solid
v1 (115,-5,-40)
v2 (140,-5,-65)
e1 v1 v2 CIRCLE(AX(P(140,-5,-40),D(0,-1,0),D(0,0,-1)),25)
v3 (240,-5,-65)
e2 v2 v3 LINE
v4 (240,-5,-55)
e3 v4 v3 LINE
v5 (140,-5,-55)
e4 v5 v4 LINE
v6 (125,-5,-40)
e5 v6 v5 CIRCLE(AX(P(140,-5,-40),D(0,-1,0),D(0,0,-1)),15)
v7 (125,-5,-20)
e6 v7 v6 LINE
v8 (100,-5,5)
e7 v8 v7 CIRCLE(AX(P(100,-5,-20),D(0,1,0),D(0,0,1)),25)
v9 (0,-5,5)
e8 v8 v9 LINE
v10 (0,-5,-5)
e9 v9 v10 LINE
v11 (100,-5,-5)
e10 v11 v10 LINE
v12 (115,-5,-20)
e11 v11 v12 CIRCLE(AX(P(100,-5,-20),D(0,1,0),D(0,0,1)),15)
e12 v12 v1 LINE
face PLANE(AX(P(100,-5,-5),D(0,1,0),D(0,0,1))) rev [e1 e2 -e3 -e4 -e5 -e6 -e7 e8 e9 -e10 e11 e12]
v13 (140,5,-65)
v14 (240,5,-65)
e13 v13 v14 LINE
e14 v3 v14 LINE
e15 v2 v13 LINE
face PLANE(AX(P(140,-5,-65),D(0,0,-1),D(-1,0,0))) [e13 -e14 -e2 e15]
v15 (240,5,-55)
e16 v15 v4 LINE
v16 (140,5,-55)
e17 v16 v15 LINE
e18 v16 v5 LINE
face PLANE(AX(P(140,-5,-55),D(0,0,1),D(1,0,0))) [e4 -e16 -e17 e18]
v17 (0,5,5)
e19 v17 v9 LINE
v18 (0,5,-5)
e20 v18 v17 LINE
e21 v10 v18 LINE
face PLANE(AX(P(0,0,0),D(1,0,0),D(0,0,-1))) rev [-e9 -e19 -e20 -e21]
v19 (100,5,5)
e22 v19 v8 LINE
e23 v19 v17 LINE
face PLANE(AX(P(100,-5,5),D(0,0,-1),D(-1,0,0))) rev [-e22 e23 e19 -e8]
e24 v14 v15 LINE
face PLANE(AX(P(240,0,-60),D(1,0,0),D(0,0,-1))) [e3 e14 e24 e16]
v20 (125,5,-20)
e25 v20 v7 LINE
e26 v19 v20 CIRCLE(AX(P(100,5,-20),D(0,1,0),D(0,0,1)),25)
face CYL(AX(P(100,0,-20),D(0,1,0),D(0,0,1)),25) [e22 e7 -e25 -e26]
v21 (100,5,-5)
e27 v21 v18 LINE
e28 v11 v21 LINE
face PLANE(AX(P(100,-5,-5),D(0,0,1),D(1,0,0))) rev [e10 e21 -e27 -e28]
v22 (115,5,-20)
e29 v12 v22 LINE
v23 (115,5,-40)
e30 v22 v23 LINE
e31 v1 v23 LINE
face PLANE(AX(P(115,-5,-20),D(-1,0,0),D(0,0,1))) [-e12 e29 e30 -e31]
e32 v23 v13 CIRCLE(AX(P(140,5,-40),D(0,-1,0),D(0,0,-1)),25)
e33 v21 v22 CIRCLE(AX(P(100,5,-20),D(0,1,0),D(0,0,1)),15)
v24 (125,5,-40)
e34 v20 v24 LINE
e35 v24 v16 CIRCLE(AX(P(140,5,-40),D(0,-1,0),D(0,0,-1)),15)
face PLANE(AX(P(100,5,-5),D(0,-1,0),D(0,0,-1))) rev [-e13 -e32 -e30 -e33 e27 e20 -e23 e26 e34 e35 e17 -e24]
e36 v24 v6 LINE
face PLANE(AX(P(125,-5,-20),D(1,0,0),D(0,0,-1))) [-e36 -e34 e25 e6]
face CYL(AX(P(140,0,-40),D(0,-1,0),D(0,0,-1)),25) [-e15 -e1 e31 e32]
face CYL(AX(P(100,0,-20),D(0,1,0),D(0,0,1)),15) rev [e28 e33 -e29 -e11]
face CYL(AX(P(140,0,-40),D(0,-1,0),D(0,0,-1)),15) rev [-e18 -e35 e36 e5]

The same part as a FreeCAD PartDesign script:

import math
import FreeCAD as App
import Part
import Sketcher

doc = App.newDocument("Part")
body = doc.addObject("PartDesign::Body", "Body")

# Sketch on YZ plane
sketch1 = body.newObject("Sketcher::SketchObject", "Sketch")
sketch1.AttachmentSupport = (doc.getObject("YZ_Plane"), [""])
sketch1.MapMode = "FlatFace"
sketch1.addGeometry(Part.LineSegment(App.Vector(5, 5, 0), App.Vector(-5, 5, 0)), False)
sketch1.addGeometry(Part.LineSegment(App.Vector(-5, 5, 0), App.Vector(-5, -5, 0)), False)
sketch1.addGeometry(Part.LineSegment(App.Vector(-5, -5, 0), App.Vector(5, -5, 0)), False)
sketch1.addGeometry(Part.LineSegment(App.Vector(5, -5, 0), App.Vector(5, 5, 0)), False)
sketch1.addConstraint(Sketcher.Constraint("Coincident", 0, 2, 1, 1))
sketch1.addConstraint(Sketcher.Constraint("Coincident", 1, 2, 2, 1))
sketch1.addConstraint(Sketcher.Constraint("Coincident", 2, 2, 3, 1))
sketch1.addConstraint(Sketcher.Constraint("Coincident", 3, 2, 0, 1))
sketch1.addConstraint(Sketcher.Constraint("Horizontal", 0))
sketch1.addConstraint(Sketcher.Constraint("Vertical", 1))
sketch1.addConstraint(Sketcher.Constraint("Horizontal", 2))
sketch1.addConstraint(Sketcher.Constraint("Vertical", 3))
sketch1.addConstraint(Sketcher.Constraint("Symmetric", 0, 2, 2, 2, -1, 1))
sketch1.addConstraint(Sketcher.Constraint("Equal", 2, 1))
sketch1.addConstraint(Sketcher.Constraint("DistanceX", 0, 2, 0, 1, 10.0))

# Sketch on XZ plane
sketch2 = body.newObject("Sketcher::SketchObject", "Sketch001")
sketch2.AttachmentSupport = (doc.getObject("XZ_Plane"), [""])
sketch2.MapMode = "FlatFace"
sketch2.addGeometry(Part.LineSegment(App.Vector(0, 0, 0), App.Vector(100, 0, 0)), False)
sketch2.addGeometry(Part.ArcOfCircle(Part.Circle(App.Vector(100, -20, 0), App.Vector(0, 0, 1), 20), math.radians(0), math.radians(90)), False)
sketch2.addGeometry(Part.LineSegment(App.Vector(120, -20, 0), App.Vector(120, -40, 0)), False)
sketch2.addGeometry(Part.ArcOfCircle(Part.Circle(App.Vector(140, -40, 0), App.Vector(0, 0, 1), 20), math.radians(180), math.radians(270)), False)
sketch2.addGeometry(Part.LineSegment(App.Vector(140, -60, 0), App.Vector(240, -60, 0)), False)
sketch2.addConstraint(Sketcher.Constraint("Tangent", 0, 2, 1, 2))
sketch2.addConstraint(Sketcher.Constraint("Tangent", 1, 1, 2, 1))
sketch2.addConstraint(Sketcher.Constraint("Tangent", 2, 2, 3, 1))
sketch2.addConstraint(Sketcher.Constraint("Tangent", 3, 2, 4, 1))
sketch2.addConstraint(Sketcher.Constraint("Horizontal", 0))
sketch2.addConstraint(Sketcher.Constraint("Vertical", 2))
sketch2.addConstraint(Sketcher.Constraint("Horizontal", 4))
sketch2.addConstraint(Sketcher.Constraint("Coincident", 0, 1, -1, 1))
sketch2.addConstraint(Sketcher.Constraint("Equal", 1, 3))
sketch2.addConstraint(Sketcher.Constraint("Equal", 0, 4))
sketch2.addConstraint(Sketcher.Constraint("Radius", 1, 20.0))
sketch2.addConstraint(Sketcher.Constraint("DistanceX", 0, 1, 0, 2, 100.0))
sketch2.addConstraint(Sketcher.Constraint("DistanceY", 2, 2, 2, 1, 20.0))
doc.recompute()

additivepipe = body.newObject("PartDesign::AdditivePipe", "AdditivePipe")
additivepipe.Profile = sketch1
additivepipe.Spine = (sketch2, ["Edge1", "Edge2", "Edge3", "Edge4", "Edge5"])

doc.recompute()
